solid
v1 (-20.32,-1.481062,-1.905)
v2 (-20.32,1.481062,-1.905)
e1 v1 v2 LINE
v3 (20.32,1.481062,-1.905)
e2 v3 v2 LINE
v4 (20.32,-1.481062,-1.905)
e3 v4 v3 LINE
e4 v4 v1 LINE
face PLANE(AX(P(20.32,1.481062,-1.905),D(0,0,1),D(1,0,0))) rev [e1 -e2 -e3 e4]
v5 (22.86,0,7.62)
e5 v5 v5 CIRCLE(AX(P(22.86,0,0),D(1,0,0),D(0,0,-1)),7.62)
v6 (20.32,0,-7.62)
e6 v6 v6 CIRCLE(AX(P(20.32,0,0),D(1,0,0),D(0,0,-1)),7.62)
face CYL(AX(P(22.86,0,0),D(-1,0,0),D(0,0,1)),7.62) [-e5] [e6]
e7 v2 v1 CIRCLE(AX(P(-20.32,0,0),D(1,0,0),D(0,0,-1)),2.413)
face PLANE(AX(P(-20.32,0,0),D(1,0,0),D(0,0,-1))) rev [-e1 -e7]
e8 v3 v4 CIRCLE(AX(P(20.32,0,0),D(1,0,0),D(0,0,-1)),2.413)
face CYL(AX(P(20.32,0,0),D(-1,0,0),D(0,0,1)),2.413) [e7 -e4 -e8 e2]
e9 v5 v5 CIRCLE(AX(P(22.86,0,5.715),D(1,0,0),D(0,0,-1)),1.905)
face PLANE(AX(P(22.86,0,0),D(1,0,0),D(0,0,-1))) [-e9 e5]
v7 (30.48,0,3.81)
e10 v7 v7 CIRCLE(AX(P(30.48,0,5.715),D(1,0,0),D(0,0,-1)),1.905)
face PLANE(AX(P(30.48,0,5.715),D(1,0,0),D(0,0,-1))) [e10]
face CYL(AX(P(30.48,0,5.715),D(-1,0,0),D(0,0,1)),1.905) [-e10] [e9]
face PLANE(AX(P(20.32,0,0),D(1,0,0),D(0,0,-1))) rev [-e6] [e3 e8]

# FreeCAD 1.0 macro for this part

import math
import FreeCAD as App
import Part
import Sketcher

V = App.Vector
Q = App.Units.Quantity

doc = App.newDocument("Part")
params = doc.addObject("Spreadsheet::Sheet", "Params")
for row, (alias, value) in enumerate([
    ("sketch1_radius", "0.095 in"),
    ("pad1_length", "1.6 in"),
    ("sketch2_diameter", "0.6 in"),
    ("pad2_length", "0.1 in"),
    ("sketch3_diameter", "0.15 in"),
    ("pad3_length", "0.3 in"),
], start=1):
    params.set(f"A{row}", alias)
    params.set(f"B{row}", "=" + value)
    params.setAlias(f"B{row}", alias)

body = doc.addObject("PartDesign::Body", "Body")

# Sketch on YZ plane
sketch1 = doc.addObject("Sketcher::SketchObject", "Sketch")
body.addObject(sketch1)
sketch1.AttachmentSupport = (doc.YZ_Plane, [""])
sketch1.MapMode = "FlatFace"
sketch1.addGeometry(Part.LineSegment(V(-1.481062, -1.905, 0), V(1.481062, -1.905, 0)), False)
sketch1.addGeometry(Part.ArcOfCircle(Part.Circle(V(0, 0, 0), V(0, 0, 1), 2.413), math.radians(-52.136354), math.radians(232.136354)), False)
sketch1.addConstraint(Sketcher.Constraint("Coincident", 0, 1, 1, 2))
sketch1.addConstraint(Sketcher.Constraint("Coincident", 1, 1, 0, 2))
sketch1.addConstraint(Sketcher.Constraint("Horizontal", 0))
sketch1.addConstraint(Sketcher.Constraint("Coincident", 1, 3, -1, 1))
sketch1.addConstraint(Sketcher.Constraint("Radius", 1, Q("0.095 in")))
sketch1.addConstraint(Sketcher.Constraint("DistanceY", 0, 1, -1, 1, Q("0.075 in")))
sketch1.setExpression("Constraints[4]", "Params.sketch1_radius")
pad1 = doc.addObject("PartDesign::Pad", "Pad")
body.addObject(pad1)
pad1.Profile = sketch1
pad1.setExpression("Length", "Params.pad1_length")
pad1.Midplane = True

# Sketch on YZ plane
sketch2 = doc.addObject("Sketcher::SketchObject", "Sketch001")
body.addObject(sketch2)
sketch2.AttachmentSupport = (doc.YZ_Plane, [""])
sketch2.MapMode = "FlatFace"
sketch2.AttachmentOffset = App.Placement(V(0, 0, 0.8 * 25.4), App.Rotation())
sketch2.addGeometry(Part.Circle(V(0, 0, 0), V(0, 0, 1), 7.62), False)
sketch2.addConstraint(Sketcher.Constraint("Coincident", 0, 3, -1, 1))
sketch2.addConstraint(Sketcher.Constraint("Diameter", 0, Q("0.6 in")))
sketch2.setExpression("Constraints[1]", "Params.sketch2_diameter")
pad2 = doc.addObject("PartDesign::Pad", "Pad001")
body.addObject(pad2)
pad2.Profile = sketch2
pad2.setExpression("Length", "Params.pad2_length")

# Sketch on YZ plane
sketch3 = doc.addObject("Sketcher::SketchObject", "Sketch002")
body.addObject(sketch3)
sketch3.AttachmentSupport = (doc.YZ_Plane, [""])
sketch3.MapMode = "FlatFace"
sketch3.AttachmentOffset = App.Placement(V(0, 0, 0.9 * 25.4), App.Rotation())
sketch3.addGeometry(Part.Circle(V(0, 5.715, 0), V(0, 0, 1), 1.905), False)
sketch3.addConstraint(Sketcher.Constraint("PointOnObject", 0, 3, -2))
sketch3.addConstraint(Sketcher.Constraint("Diameter", 0, Q("0.15 in")))
sketch3.addConstraint(Sketcher.Constraint("DistanceY", -1, 1, 0, 3, Q("0.225 in")))
sketch3.setExpression("Constraints[1]", "Params.sketch3_diameter")
pad3 = doc.addObject("PartDesign::Pad", "Pad002")
body.addObject(pad3)
pad3.Profile = sketch3
pad3.setExpression("Length", "Params.pad3_length")

doc.recompute()
